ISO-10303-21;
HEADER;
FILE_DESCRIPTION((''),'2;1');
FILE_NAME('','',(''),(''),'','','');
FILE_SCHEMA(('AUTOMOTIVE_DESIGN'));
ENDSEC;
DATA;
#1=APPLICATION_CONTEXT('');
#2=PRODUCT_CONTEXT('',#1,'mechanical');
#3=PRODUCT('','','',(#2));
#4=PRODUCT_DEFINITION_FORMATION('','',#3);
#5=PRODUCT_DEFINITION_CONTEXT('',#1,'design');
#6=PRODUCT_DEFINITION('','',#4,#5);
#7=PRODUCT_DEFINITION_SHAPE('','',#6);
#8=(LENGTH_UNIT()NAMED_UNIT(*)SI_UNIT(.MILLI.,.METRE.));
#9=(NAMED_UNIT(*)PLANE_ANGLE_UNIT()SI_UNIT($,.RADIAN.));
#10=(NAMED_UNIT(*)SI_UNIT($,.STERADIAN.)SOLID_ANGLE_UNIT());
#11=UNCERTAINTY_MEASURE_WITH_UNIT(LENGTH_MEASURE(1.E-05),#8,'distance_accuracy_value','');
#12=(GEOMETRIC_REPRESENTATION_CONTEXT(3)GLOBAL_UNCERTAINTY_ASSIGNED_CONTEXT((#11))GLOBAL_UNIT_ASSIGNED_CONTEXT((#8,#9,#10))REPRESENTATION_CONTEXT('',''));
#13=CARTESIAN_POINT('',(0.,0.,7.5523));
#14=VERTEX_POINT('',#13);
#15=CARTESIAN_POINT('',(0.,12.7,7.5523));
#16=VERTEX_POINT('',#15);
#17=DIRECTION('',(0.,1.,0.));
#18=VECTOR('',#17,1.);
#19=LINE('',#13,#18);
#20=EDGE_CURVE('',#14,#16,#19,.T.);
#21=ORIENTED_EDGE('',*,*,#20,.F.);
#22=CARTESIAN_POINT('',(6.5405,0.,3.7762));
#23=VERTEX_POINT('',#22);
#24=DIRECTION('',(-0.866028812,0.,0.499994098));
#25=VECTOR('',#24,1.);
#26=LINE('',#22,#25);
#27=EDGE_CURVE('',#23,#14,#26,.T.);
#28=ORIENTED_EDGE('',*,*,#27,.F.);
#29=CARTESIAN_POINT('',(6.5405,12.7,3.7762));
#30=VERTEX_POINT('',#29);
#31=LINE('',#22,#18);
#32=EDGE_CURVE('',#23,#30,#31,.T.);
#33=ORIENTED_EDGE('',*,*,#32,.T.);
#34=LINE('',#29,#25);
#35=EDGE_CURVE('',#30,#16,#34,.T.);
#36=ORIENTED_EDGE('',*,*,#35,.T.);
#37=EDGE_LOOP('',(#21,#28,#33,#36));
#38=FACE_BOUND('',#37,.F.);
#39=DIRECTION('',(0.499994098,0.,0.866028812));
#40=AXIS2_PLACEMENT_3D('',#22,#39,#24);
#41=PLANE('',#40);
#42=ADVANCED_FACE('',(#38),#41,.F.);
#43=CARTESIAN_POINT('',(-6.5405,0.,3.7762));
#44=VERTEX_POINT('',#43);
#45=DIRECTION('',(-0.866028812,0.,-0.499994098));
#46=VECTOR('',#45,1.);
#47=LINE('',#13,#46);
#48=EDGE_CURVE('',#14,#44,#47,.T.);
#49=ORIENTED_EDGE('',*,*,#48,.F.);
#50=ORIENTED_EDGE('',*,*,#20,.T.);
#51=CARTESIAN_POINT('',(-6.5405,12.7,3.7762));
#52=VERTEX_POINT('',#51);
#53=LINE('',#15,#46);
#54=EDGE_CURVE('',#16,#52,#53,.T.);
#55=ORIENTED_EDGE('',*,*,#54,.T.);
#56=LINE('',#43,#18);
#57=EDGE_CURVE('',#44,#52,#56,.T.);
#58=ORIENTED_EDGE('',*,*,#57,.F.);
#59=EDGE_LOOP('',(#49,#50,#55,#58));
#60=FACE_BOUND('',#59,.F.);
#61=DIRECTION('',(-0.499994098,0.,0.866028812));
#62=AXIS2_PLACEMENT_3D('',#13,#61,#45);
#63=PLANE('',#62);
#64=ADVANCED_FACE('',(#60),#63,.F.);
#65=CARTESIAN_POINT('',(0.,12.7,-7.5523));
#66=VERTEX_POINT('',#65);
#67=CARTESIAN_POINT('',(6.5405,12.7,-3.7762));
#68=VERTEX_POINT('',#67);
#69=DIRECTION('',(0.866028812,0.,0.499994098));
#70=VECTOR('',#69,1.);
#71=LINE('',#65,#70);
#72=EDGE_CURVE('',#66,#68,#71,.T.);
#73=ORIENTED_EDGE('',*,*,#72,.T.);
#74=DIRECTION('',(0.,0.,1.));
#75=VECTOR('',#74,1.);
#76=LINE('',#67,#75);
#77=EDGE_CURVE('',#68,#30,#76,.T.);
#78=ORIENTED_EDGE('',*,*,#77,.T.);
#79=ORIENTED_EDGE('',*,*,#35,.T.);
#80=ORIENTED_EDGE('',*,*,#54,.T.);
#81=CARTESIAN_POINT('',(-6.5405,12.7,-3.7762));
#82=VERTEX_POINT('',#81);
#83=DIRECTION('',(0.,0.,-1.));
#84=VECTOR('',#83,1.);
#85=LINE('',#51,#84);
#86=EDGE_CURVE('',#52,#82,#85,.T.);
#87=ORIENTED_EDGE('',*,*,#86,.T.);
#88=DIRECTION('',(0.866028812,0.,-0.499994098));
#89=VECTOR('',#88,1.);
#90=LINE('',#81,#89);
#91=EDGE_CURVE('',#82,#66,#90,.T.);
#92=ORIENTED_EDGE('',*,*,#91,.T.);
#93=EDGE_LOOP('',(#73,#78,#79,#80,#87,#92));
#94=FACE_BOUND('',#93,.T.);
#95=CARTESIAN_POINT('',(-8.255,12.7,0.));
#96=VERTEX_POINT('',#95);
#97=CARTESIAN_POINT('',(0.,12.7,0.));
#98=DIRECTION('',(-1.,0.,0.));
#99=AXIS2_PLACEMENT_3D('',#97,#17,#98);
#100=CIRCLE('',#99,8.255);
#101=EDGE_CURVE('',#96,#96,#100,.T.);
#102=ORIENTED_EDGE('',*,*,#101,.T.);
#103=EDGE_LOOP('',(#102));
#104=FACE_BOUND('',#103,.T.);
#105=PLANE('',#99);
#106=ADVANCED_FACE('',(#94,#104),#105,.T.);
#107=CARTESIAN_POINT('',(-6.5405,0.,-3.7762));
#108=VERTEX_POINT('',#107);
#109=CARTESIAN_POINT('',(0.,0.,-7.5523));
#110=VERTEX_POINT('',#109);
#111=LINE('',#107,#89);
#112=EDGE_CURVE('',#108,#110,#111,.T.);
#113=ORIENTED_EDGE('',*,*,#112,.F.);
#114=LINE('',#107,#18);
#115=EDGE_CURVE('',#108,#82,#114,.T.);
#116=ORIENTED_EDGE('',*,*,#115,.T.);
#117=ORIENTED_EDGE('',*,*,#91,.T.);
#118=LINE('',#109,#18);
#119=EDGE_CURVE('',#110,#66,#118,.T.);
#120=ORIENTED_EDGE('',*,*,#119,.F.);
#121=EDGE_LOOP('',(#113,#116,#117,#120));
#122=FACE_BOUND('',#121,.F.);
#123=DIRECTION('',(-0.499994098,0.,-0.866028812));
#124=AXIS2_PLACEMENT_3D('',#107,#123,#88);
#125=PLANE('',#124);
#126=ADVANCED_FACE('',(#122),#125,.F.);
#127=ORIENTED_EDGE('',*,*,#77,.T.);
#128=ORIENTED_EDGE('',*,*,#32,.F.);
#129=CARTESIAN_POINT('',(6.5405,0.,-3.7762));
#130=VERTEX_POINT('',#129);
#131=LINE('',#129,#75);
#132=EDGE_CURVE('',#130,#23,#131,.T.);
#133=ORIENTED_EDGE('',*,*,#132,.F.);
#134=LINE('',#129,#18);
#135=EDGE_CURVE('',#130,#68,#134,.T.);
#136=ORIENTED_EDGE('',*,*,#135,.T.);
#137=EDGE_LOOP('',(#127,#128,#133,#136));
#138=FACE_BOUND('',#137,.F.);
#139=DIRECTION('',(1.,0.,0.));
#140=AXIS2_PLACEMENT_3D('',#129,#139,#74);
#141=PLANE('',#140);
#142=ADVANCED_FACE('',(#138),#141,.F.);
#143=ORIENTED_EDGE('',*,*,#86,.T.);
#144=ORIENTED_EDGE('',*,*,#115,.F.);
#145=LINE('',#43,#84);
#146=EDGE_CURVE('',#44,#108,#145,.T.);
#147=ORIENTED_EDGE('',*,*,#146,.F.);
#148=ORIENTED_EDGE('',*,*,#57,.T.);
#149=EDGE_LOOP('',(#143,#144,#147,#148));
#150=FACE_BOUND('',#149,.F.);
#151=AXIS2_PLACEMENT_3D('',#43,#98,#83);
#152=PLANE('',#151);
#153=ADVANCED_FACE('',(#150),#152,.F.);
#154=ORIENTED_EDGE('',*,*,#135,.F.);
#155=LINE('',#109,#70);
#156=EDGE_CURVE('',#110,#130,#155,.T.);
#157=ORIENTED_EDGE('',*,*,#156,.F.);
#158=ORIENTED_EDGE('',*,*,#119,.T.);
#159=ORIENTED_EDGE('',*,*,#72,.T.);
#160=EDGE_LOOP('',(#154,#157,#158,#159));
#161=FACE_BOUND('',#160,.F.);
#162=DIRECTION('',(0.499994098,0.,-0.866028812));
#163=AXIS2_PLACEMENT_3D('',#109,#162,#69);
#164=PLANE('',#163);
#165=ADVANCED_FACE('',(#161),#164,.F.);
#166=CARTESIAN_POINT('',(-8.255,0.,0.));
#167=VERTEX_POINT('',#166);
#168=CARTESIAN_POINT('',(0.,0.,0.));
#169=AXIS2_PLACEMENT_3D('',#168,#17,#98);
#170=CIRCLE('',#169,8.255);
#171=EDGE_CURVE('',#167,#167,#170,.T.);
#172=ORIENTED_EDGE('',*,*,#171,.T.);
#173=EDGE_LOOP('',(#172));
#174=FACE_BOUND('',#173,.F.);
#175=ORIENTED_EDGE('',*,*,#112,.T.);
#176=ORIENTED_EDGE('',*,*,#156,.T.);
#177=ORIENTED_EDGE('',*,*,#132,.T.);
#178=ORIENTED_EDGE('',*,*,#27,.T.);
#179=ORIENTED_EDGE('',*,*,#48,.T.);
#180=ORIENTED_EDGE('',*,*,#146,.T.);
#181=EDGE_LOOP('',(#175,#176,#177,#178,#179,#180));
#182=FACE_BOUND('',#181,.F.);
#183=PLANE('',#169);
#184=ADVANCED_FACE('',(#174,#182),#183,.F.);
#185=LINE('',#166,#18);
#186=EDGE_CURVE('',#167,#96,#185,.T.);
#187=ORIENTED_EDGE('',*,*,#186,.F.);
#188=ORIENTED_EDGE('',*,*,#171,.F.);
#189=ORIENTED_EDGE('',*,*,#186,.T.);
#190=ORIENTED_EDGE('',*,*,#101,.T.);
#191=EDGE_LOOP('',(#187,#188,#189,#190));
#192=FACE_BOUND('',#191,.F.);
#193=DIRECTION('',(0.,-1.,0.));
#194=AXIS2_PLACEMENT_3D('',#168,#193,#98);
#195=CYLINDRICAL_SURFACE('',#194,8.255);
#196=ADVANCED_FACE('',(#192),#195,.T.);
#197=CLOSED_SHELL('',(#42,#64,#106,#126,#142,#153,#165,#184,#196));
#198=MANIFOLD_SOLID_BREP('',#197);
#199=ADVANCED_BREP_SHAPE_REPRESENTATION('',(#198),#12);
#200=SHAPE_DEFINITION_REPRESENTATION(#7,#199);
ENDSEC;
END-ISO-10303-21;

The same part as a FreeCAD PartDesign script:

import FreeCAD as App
import Part
import Sketcher

V = App.Vector
Q = App.Units.Quantity


def add_polygon(sketch, points):
    """Adds a closed chain of lines whose ends are joined by coincident constraints."""
    first, n = sketch.GeometryCount, len(points)
    for a, b in zip(points, points[1:] + points[:1]):
        sketch.addGeometry(Part.LineSegment(App.Vector(*a, 0), App.Vector(*b, 0)), False)
    for i in range(n):
        sketch.addConstraint(Sketcher.Constraint("Coincident", first + i, 2, first + (i + 1) % n, 1))

doc = App.newDocument("Part")
body = doc.addObject("PartDesign::Body", "Body")

sketch1 = body.newObject("Sketcher::SketchObject", "Sketch")
sketch1.AttachmentSupport = (doc.getObject("XZ_Plane"), [""])
sketch1.MapMode = "FlatFace"
sketch1.addGeometry(Part.Circle(V(0, 0, 0), V(0, 0, 1), 8), False)
add_polygon(sketch1, [(0, -8), (7, -4), (7, 4), (0, 8), (-7, 4), (-7, -4)])
sketch1.addConstraint(Sketcher.Constraint("Vertical", 2))
sketch1.addConstraint(Sketcher.Constraint("Vertical", 5))
sketch1.addConstraint(Sketcher.Constraint("Coincident", 0, 3, -1, 1))
sketch1.addConstraint(Sketcher.Constraint("Symmetric", 1, 2, 4, 2, -1, 1))
sketch1.addConstraint(Sketcher.Constraint("Symmetric", 3, 2, 6, 2, -1, 1))
sketch1.addConstraint(Sketcher.Constraint("PointOnObject", 3, 2, -2))
sketch1.addConstraint(Sketcher.Constraint("Parallel", 3, 6))
sketch1.addConstraint(Sketcher.Constraint("Horizontal", 2, 2, 4, 2))
sketch1.addConstraint(Sketcher.Constraint("Diameter", 0, Q("0.65 in")))
sketch1.addConstraint(Sketcher.Constraint("Angle", 1, Q("29.9996 deg")))
sketch1.addConstraint(Sketcher.Constraint("DistanceX", 4, 2, 2, 2, Q("0.515 in")))
sketch1.addConstraint(Sketcher.Constraint("DistanceY", 1, 2, 3, 2, Q("0.446 in")))
pad1 = body.newObject("PartDesign::Pad", "Pad")
pad1.Profile = sketch1
pad1.Length = Q("0.5 in")
pad1.Reversed = True

doc.recompute()
